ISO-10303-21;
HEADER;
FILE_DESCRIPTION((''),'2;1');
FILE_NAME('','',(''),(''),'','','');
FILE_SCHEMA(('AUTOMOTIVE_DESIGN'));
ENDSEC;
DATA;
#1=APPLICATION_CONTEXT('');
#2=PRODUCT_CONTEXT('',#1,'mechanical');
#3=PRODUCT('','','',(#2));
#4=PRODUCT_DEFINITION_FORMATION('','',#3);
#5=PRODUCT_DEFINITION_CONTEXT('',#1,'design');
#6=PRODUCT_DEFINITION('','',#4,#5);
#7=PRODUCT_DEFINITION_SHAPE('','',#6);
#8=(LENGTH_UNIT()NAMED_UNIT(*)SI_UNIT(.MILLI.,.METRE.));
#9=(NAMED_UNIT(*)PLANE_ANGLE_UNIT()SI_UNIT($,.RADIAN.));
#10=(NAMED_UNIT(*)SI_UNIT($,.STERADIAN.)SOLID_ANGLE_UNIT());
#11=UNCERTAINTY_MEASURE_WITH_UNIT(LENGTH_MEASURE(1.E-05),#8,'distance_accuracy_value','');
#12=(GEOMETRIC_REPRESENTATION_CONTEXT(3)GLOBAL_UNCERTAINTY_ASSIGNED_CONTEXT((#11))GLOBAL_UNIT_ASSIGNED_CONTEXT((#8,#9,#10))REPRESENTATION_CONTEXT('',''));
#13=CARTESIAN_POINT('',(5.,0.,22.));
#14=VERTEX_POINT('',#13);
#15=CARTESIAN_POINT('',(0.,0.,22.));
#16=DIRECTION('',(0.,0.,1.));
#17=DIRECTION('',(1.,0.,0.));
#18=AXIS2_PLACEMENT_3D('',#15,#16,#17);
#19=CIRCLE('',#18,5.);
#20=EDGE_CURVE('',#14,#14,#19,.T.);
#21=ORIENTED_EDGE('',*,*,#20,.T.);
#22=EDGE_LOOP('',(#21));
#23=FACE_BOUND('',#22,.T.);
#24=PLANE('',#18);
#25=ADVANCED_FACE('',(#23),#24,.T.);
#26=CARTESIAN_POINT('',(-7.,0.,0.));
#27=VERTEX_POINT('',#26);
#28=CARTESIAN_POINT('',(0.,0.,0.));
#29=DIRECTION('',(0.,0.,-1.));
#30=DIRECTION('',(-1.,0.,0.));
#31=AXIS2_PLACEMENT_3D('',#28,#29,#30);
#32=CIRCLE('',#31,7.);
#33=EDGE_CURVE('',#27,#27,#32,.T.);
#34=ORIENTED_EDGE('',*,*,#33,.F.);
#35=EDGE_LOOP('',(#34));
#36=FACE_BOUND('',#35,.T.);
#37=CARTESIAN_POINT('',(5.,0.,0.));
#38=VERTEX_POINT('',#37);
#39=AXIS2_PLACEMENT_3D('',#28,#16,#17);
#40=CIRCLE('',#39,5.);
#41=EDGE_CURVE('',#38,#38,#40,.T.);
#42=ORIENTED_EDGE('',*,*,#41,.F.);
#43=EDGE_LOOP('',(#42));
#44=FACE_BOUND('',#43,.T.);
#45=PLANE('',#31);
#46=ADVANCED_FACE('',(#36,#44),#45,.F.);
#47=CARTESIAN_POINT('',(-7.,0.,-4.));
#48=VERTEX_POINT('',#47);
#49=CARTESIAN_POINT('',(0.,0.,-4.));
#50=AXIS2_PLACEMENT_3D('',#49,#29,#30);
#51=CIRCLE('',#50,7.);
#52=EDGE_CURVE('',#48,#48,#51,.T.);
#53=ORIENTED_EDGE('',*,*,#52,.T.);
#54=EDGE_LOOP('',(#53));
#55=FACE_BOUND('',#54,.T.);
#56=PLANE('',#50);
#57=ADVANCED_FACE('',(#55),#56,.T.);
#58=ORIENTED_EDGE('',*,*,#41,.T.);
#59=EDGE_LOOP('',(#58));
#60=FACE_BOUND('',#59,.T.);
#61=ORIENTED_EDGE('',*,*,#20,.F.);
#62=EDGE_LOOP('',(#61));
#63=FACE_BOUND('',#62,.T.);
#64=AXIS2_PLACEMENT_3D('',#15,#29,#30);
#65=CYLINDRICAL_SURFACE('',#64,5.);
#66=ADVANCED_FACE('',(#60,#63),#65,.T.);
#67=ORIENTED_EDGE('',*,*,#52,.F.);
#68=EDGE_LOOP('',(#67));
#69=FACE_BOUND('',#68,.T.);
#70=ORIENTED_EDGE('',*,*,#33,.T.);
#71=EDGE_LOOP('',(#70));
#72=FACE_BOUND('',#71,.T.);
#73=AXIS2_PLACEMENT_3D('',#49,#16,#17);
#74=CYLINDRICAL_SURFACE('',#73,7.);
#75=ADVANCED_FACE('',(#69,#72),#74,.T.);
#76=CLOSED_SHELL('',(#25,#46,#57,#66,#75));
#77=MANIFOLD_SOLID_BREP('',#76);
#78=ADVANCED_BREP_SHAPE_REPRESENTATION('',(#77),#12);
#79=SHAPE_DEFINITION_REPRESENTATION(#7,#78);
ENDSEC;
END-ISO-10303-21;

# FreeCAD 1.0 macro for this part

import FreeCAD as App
import Part
import Sketcher
Q = App.Units.Quantity

doc = App.newDocument("Part")
body = doc.addObject("PartDesign::Body", "Body")

# Sketch on XY plane
sketch1 = body.newObject("Sketcher::SketchObject", "Sketch")
sketch1.AttachmentSupport = (doc.getObject("XY_Plane"), [""])
sketch1.MapMode = "FlatFace"
sketch1.addGeometry(Part.Circle(App.Vector(0, 0, 0), App.Vector(0, 0, 1), 5), False)
sketch1.addConstraint(Sketcher.Constraint("Coincident", 0, 3, -1, 1))
sketch1.addConstraint(Sketcher.Constraint("Diameter", 0, Q("10 mm")))
pad1 = body.newObject("PartDesign::Pad", "Pad")
pad1.Profile = sketch1
pad1.Length = 22

# Sketch on XY plane
sketch2 = body.newObject("Sketcher::SketchObject", "Sketch001")
sketch2.AttachmentSupport = (doc.getObject("XY_Plane"), [""])
sketch2.MapMode = "FlatFace"
sketch2.addGeometry(Part.Circle(App.Vector(0, 0, 0), App.Vector(0, 0, 1), 7), False)
sketch2.addConstraint(Sketcher.Constraint("Coincident", 0, 3, -1, 1))
sketch2.addConstraint(Sketcher.Constraint("Diameter", 0, Q("14 mm")))
pad2 = body.newObject("PartDesign::Pad", "Pad001")
pad2.Profile = sketch2
pad2.Length = 4
pad2.Reversed = True

doc.recompute()
